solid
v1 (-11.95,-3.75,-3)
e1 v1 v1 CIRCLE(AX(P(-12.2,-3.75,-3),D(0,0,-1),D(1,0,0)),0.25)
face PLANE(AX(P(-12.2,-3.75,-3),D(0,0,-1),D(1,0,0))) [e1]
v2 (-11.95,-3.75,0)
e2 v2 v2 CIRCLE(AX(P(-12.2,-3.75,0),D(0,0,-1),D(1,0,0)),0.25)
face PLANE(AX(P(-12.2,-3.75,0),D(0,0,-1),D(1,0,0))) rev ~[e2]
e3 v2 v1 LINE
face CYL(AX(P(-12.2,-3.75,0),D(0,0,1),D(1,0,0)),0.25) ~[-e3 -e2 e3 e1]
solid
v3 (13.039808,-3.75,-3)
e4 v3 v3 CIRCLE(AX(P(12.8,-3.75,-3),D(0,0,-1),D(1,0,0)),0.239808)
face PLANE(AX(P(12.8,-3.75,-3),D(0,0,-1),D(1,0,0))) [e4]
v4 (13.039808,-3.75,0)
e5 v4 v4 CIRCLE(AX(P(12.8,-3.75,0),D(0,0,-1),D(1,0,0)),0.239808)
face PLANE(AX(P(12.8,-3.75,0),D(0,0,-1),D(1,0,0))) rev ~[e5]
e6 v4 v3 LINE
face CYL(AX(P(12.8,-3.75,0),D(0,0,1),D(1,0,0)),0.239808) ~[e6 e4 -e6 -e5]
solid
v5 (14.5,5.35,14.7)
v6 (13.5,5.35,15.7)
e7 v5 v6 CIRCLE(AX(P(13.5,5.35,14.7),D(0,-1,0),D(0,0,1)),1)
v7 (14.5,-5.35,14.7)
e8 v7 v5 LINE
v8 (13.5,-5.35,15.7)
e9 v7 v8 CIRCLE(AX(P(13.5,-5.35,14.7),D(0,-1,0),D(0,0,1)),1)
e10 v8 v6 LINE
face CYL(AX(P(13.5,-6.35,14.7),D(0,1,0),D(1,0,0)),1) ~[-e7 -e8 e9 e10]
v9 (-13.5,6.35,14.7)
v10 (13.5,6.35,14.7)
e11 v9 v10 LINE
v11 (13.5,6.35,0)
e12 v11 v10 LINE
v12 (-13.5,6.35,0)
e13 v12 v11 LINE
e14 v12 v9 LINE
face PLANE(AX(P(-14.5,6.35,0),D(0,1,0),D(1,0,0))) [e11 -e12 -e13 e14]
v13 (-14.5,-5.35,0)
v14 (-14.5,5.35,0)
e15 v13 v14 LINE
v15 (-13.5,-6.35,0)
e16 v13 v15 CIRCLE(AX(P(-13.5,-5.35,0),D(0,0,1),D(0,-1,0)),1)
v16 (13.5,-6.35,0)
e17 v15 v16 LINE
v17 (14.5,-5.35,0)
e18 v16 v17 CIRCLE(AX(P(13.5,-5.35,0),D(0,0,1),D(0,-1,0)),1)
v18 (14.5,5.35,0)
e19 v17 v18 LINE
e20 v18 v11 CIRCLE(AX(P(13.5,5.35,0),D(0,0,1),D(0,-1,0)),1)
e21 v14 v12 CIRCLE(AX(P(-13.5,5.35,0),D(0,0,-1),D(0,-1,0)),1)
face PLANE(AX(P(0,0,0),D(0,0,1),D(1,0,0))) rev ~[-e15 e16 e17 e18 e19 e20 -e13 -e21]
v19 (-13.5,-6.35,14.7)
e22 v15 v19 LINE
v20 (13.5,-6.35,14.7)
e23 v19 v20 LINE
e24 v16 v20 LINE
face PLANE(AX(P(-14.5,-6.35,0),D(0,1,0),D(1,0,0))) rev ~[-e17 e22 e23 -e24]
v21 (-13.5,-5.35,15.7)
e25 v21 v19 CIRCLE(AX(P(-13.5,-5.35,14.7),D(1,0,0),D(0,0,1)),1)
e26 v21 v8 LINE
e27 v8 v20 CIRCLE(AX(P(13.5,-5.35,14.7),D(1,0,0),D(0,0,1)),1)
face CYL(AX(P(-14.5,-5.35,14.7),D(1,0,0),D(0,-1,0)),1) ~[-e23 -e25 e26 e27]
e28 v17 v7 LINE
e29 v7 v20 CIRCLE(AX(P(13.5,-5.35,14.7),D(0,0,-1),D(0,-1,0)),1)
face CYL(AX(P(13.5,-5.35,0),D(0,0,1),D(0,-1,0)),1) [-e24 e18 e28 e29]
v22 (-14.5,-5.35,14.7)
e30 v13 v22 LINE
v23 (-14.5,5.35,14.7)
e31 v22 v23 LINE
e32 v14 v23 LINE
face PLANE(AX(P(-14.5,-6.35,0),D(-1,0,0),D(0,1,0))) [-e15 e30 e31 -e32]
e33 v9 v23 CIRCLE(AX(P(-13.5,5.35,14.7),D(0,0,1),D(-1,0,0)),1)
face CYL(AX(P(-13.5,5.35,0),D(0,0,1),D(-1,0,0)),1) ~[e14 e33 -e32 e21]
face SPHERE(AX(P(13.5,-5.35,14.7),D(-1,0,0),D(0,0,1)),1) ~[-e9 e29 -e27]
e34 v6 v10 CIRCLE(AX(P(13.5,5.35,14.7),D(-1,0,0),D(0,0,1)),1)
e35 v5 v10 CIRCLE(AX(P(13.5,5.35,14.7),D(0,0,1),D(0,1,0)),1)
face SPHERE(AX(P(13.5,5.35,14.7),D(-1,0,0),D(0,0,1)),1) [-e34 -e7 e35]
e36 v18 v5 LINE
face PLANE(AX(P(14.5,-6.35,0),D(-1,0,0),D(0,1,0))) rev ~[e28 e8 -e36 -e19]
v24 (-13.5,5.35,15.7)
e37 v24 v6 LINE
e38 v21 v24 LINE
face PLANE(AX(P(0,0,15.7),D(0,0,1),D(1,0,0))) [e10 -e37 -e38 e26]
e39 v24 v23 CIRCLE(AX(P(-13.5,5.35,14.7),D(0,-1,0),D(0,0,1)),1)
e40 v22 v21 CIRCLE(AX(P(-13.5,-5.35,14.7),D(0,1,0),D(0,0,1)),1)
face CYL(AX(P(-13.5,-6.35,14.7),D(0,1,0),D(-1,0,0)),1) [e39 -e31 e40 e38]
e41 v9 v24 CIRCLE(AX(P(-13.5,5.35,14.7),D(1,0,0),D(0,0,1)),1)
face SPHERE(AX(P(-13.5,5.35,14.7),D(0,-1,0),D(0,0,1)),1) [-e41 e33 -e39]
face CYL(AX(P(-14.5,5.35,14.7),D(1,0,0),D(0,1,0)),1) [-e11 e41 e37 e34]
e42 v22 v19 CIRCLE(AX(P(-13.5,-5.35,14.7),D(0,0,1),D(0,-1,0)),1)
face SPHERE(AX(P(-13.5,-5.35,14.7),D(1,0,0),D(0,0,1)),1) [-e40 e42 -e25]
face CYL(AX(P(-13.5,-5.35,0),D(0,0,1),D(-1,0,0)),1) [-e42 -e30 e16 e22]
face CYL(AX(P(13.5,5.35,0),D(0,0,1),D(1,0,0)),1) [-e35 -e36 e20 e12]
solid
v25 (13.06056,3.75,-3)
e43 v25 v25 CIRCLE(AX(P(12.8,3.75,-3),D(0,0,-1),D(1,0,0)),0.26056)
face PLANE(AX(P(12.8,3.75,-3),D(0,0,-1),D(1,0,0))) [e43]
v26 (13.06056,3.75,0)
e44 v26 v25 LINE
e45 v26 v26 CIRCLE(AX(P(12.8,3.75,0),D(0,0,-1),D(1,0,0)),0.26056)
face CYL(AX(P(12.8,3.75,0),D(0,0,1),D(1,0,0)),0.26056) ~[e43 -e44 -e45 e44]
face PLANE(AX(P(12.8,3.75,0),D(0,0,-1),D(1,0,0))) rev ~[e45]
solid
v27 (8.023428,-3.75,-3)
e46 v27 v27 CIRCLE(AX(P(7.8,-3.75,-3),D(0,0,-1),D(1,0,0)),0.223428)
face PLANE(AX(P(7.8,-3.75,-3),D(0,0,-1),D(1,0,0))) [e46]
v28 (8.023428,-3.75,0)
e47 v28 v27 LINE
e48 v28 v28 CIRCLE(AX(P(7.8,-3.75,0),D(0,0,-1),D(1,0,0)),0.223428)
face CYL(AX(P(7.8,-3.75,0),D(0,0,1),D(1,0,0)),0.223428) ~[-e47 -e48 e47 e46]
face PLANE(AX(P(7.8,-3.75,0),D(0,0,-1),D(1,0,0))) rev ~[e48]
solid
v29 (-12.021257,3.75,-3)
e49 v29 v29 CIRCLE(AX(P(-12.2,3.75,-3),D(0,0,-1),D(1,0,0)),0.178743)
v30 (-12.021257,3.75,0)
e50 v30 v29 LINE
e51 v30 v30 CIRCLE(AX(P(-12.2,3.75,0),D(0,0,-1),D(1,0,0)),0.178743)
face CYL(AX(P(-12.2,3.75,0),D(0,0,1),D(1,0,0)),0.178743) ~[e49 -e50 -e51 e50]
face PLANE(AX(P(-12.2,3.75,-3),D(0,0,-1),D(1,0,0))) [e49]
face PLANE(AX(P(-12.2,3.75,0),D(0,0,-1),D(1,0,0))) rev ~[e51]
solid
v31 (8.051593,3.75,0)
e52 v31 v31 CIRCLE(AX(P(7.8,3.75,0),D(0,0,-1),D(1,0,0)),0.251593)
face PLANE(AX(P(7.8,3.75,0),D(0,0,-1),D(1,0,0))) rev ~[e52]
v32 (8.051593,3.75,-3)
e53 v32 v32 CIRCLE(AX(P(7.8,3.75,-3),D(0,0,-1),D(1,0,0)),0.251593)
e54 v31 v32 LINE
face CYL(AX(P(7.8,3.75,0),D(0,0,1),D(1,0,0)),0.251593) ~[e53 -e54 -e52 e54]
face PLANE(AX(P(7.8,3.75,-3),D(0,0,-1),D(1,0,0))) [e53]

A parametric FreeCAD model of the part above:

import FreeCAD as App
import Part
import Sketcher

V = App.Vector
Q = App.Units.Quantity


def edges_at(feature, points):
    """Names of the edges that pass closest to the given points."""
    edges = feature.Shape.Edges
    near = lambda p: min(range(len(edges)), key=lambda i: edges[i].distToShape(Part.Vertex(*p))[0])
    return sorted({f"Edge{near(p) + 1}" for p in points})


def add_polygon(sketch, points):
    """Adds a closed chain of lines whose ends are joined by coincident constraints."""
    first, n = sketch.GeometryCount, len(points)
    for a, b in zip(points, points[1:] + points[:1]):
        sketch.addGeometry(Part.LineSegment(App.Vector(*a, 0), App.Vector(*b, 0)), False)
    for i in range(n):
        sketch.addConstraint(Sketcher.Constraint("Coincident", first + i, 2, first + (i + 1) % n, 1))

doc = App.newDocument("Part")
body = doc.addObject("PartDesign::Body", "Body")

sketch1 = body.newObject("Sketcher::SketchObject", "Sketch")
sketch1.AttachmentSupport = (doc.getObject("XY_Plane"), [""])
sketch1.MapMode = "FlatFace"
add_polygon(sketch1, [(-14, 6), (-14, -6), (14, -6), (14, 6)])
sketch1.addConstraint(Sketcher.Constraint("Vertical", 0))
sketch1.addConstraint(Sketcher.Constraint("Horizontal", 1))
sketch1.addConstraint(Sketcher.Constraint("Vertical", 2))
sketch1.addConstraint(Sketcher.Constraint("Horizontal", 3))
sketch1.addConstraint(Sketcher.Constraint("Symmetric", 0, 2, 2, 2, -1, 1))
sketch1.addConstraint(Sketcher.Constraint("DistanceX", 1, 1, 1, 2, Q("29 mm")))
sketch1.addConstraint(Sketcher.Constraint("DistanceY", 0, 2, 0, 1, Q("12.7 mm")))
pad1 = body.newObject("PartDesign::Pad", "Pad")
pad1.Profile = sketch1
pad1.Length = 15.7
doc.recompute()

fillet = body.newObject("PartDesign::Fillet", "Fillet")
fillet.Base = (pad1, edges_at(pad1, [
    (0, -6.35, 15.7),
    (-14.5, 0, 15.7),
    (0, 6.35, 15.7),
    (14.5, 0, 15.7),
    (14.5, -6.35, 7.85),
    (14.5, 6.35, 7.85),
    (-14.5, -6.35, 7.85),
    (-14.5, 6.35, 7.85),
]))
fillet.Radius = 1
body2 = doc.addObject("PartDesign::Body", "Body001")
body2.AllowCompound = True

sketch2 = body2.newObject("Sketcher::SketchObject", "Sketch001")
sketch2.AttachmentSupport = (doc.getObject("XY_Plane001"), [""])
sketch2.MapMode = "FlatFace"
sketch2.addGeometry(Part.Circle(V(-12.2, -3.75, 0), V(0, 0, 1), 0.25), False)
sketch2.addGeometry(Part.Circle(V(-12.2, 3.75, 0), V(0, 0, 1), 0.18), False)
sketch2.addGeometry(Part.Circle(V(7.8, -3.75, 0), V(0, 0, 1), 0.22), False)
sketch2.addGeometry(Part.Circle(V(12.8, -3.75, 0), V(0, 0, 1), 0.24), False)
sketch2.addGeometry(Part.Circle(V(7.8, 3.75, 0), V(0, 0, 1), 0.25), False)
sketch2.addGeometry(Part.Circle(V(12.8, 3.75, 0), V(0, 0, 1), 0.26), False)
sketch2.addConstraint(Sketcher.Constraint("Symmetric", 0, 3, 1, 3, -1))
sketch2.addConstraint(Sketcher.Constraint("Symmetric", 2, 3, 4, 3, -1))
sketch2.addConstraint(Sketcher.Constraint("Symmetric", 3, 3, 5, 3, -1))
sketch2.addConstraint(Sketcher.Constraint("Horizontal", 0, 3, 2, 3))
sketch2.addConstraint(Sketcher.Constraint("Horizontal", 2, 3, 3, 3))
sketch2.addConstraint(Sketcher.Constraint("Diameter", 0, Q("0.5 mm")))
sketch2.addConstraint(Sketcher.Constraint("DistanceX", 0, 3, 2, 3, Q("20 mm")))
sketch2.addConstraint(Sketcher.Constraint("DistanceX", 2, 3, 3, 3, Q("5 mm")))
sketch2.addConstraint(Sketcher.Constraint("DistanceX", 0, 3, -1, 1, Q("12.2 mm")))
sketch2.addConstraint(Sketcher.Constraint("DistanceY", 0, 3, 1, 3, Q("7.5 mm")))
sketch2.addConstraint(Sketcher.Constraint("Diameter", 5, Q("0.52112 mm")))
sketch2.addConstraint(Sketcher.Constraint("Diameter", 1, Q("0.357486 mm")))
sketch2.addConstraint(Sketcher.Constraint("Diameter", 2, Q("0.446856 mm")))
sketch2.addConstraint(Sketcher.Constraint("Diameter", 3, Q("0.479616 mm")))
sketch2.addConstraint(Sketcher.Constraint("Diameter", 4, Q("0.503186 mm")))
pad2 = body2.newObject("PartDesign::Pad", "Pad001")
pad2.Profile = sketch2
pad2.Length = 3
pad2.Reversed = True

doc.recompute()
